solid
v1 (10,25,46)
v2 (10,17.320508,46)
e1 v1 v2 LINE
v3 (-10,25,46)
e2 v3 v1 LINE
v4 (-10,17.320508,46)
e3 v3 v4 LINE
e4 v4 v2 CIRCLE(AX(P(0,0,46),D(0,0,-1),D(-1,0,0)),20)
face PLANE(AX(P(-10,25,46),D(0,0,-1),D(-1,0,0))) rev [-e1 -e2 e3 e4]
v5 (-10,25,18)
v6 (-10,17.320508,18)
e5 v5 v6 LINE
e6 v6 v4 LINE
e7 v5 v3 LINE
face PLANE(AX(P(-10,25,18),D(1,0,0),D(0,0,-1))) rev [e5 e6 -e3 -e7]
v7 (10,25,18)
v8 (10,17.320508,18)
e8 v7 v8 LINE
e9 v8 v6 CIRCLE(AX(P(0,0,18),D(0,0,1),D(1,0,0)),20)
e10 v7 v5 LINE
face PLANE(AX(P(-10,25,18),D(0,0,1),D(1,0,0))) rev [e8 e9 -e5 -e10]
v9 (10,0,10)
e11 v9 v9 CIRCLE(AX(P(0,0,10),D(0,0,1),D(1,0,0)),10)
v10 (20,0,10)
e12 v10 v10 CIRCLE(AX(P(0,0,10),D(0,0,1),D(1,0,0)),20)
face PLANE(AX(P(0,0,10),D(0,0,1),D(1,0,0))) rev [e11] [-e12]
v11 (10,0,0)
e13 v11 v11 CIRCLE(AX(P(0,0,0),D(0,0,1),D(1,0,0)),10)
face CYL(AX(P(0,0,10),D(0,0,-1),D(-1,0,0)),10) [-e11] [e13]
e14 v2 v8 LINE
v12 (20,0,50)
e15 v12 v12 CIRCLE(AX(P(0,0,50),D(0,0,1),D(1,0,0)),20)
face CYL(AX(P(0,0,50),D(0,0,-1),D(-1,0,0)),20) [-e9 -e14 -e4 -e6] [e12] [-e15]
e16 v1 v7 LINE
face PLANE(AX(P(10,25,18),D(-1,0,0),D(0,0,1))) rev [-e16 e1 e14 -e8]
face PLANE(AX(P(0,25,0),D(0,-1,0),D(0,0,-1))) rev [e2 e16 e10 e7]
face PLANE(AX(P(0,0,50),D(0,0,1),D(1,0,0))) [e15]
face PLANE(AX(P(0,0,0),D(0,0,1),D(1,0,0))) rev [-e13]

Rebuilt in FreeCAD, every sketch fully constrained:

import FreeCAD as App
import Part
import Sketcher
Q = App.Units.Quantity

doc = App.newDocument("Part")
body = doc.addObject("PartDesign::Body", "Body")

# Sketch on XY plane
sketch1 = body.newObject("Sketcher::SketchObject", "Sketch")
sketch1.AttachmentSupport = (doc.getObject("XY_Plane"), [""])
sketch1.MapMode = "FlatFace"
sketch1.addGeometry(Part.Circle(App.Vector(0, 0, 0), App.Vector(0, 0, 1), 10), False)
sketch1.addConstraint([
    Sketcher.Constraint("Coincident", 0, 3, -1, 1),
    Sketcher.Constraint("Diameter", 0, Q("20 mm")),
])
pad1 = body.newObject("PartDesign::Pad", "Pad")
pad1.Profile = sketch1
pad1.Length = 10

# Sketch on XY plane
sketch2 = body.newObject("Sketcher::SketchObject", "Sketch001")
sketch2.AttachmentSupport = (doc.getObject("XY_Plane"), [""])
sketch2.MapMode = "FlatFace"
sketch2.AttachmentOffset = App.Placement(App.Vector(0, 0, 10), App.Rotation())
sketch2.addGeometry(Part.Circle(App.Vector(0, 0, 0), App.Vector(0, 0, 1), 20), False)
sketch2.addConstraint([
    Sketcher.Constraint("Coincident", 0, 3, -1, 1),
    Sketcher.Constraint("Diameter", 0, Q("40 mm")),
])
pad2 = body.newObject("PartDesign::Pad", "Pad001")
pad2.Profile = sketch2
pad2.Length = 40

# Sketch on XZ plane
sketch3 = body.newObject("Sketcher::SketchObject", "Sketch002")
sketch3.AttachmentSupport = (doc.getObject("XZ_Plane"), [""])
sketch3.MapMode = "FlatFace"
sketch3.addGeometry([
    Part.LineSegment(App.Vector(-10, 18, 0), App.Vector(-10, 46, 0)),
    Part.LineSegment(App.Vector(-10, 46, 0), App.Vector(10, 46, 0)),
    Part.LineSegment(App.Vector(10, 46, 0), App.Vector(10, 18, 0)),
    Part.LineSegment(App.Vector(10, 18, 0), App.Vector(-10, 18, 0)),
], False)
sketch3.addConstraint([
    Sketcher.Constraint("Coincident", 0, 2, 1, 1),
    Sketcher.Constraint("Coincident", 1, 2, 2, 1),
    Sketcher.Constraint("Coincident", 2, 2, 3, 1),
    Sketcher.Constraint("Coincident", 3, 2, 0, 1),
    Sketcher.Constraint("Vertical", 0),
    Sketcher.Constraint("Horizontal", 1),
    Sketcher.Constraint("Vertical", 2),
    Sketcher.Constraint("Horizontal", 3),
    Sketcher.Constraint("DistanceX", 1, 1, 1, 2, Q("20 mm")),
    Sketcher.Constraint("DistanceY", 0, 1, 0, 2, Q("28 mm")),
    Sketcher.Constraint("DistanceX", 0, 2, -1, 1, Q("10 mm")),
    Sketcher.Constraint("DistanceY", -1, 1, 0, 2, Q("46 mm")),
])
pad3 = body.newObject("PartDesign::Pad", "Pad002")
pad3.Profile = sketch3
pad3.Length = 25
pad3.Reversed = True

doc.recompute()
